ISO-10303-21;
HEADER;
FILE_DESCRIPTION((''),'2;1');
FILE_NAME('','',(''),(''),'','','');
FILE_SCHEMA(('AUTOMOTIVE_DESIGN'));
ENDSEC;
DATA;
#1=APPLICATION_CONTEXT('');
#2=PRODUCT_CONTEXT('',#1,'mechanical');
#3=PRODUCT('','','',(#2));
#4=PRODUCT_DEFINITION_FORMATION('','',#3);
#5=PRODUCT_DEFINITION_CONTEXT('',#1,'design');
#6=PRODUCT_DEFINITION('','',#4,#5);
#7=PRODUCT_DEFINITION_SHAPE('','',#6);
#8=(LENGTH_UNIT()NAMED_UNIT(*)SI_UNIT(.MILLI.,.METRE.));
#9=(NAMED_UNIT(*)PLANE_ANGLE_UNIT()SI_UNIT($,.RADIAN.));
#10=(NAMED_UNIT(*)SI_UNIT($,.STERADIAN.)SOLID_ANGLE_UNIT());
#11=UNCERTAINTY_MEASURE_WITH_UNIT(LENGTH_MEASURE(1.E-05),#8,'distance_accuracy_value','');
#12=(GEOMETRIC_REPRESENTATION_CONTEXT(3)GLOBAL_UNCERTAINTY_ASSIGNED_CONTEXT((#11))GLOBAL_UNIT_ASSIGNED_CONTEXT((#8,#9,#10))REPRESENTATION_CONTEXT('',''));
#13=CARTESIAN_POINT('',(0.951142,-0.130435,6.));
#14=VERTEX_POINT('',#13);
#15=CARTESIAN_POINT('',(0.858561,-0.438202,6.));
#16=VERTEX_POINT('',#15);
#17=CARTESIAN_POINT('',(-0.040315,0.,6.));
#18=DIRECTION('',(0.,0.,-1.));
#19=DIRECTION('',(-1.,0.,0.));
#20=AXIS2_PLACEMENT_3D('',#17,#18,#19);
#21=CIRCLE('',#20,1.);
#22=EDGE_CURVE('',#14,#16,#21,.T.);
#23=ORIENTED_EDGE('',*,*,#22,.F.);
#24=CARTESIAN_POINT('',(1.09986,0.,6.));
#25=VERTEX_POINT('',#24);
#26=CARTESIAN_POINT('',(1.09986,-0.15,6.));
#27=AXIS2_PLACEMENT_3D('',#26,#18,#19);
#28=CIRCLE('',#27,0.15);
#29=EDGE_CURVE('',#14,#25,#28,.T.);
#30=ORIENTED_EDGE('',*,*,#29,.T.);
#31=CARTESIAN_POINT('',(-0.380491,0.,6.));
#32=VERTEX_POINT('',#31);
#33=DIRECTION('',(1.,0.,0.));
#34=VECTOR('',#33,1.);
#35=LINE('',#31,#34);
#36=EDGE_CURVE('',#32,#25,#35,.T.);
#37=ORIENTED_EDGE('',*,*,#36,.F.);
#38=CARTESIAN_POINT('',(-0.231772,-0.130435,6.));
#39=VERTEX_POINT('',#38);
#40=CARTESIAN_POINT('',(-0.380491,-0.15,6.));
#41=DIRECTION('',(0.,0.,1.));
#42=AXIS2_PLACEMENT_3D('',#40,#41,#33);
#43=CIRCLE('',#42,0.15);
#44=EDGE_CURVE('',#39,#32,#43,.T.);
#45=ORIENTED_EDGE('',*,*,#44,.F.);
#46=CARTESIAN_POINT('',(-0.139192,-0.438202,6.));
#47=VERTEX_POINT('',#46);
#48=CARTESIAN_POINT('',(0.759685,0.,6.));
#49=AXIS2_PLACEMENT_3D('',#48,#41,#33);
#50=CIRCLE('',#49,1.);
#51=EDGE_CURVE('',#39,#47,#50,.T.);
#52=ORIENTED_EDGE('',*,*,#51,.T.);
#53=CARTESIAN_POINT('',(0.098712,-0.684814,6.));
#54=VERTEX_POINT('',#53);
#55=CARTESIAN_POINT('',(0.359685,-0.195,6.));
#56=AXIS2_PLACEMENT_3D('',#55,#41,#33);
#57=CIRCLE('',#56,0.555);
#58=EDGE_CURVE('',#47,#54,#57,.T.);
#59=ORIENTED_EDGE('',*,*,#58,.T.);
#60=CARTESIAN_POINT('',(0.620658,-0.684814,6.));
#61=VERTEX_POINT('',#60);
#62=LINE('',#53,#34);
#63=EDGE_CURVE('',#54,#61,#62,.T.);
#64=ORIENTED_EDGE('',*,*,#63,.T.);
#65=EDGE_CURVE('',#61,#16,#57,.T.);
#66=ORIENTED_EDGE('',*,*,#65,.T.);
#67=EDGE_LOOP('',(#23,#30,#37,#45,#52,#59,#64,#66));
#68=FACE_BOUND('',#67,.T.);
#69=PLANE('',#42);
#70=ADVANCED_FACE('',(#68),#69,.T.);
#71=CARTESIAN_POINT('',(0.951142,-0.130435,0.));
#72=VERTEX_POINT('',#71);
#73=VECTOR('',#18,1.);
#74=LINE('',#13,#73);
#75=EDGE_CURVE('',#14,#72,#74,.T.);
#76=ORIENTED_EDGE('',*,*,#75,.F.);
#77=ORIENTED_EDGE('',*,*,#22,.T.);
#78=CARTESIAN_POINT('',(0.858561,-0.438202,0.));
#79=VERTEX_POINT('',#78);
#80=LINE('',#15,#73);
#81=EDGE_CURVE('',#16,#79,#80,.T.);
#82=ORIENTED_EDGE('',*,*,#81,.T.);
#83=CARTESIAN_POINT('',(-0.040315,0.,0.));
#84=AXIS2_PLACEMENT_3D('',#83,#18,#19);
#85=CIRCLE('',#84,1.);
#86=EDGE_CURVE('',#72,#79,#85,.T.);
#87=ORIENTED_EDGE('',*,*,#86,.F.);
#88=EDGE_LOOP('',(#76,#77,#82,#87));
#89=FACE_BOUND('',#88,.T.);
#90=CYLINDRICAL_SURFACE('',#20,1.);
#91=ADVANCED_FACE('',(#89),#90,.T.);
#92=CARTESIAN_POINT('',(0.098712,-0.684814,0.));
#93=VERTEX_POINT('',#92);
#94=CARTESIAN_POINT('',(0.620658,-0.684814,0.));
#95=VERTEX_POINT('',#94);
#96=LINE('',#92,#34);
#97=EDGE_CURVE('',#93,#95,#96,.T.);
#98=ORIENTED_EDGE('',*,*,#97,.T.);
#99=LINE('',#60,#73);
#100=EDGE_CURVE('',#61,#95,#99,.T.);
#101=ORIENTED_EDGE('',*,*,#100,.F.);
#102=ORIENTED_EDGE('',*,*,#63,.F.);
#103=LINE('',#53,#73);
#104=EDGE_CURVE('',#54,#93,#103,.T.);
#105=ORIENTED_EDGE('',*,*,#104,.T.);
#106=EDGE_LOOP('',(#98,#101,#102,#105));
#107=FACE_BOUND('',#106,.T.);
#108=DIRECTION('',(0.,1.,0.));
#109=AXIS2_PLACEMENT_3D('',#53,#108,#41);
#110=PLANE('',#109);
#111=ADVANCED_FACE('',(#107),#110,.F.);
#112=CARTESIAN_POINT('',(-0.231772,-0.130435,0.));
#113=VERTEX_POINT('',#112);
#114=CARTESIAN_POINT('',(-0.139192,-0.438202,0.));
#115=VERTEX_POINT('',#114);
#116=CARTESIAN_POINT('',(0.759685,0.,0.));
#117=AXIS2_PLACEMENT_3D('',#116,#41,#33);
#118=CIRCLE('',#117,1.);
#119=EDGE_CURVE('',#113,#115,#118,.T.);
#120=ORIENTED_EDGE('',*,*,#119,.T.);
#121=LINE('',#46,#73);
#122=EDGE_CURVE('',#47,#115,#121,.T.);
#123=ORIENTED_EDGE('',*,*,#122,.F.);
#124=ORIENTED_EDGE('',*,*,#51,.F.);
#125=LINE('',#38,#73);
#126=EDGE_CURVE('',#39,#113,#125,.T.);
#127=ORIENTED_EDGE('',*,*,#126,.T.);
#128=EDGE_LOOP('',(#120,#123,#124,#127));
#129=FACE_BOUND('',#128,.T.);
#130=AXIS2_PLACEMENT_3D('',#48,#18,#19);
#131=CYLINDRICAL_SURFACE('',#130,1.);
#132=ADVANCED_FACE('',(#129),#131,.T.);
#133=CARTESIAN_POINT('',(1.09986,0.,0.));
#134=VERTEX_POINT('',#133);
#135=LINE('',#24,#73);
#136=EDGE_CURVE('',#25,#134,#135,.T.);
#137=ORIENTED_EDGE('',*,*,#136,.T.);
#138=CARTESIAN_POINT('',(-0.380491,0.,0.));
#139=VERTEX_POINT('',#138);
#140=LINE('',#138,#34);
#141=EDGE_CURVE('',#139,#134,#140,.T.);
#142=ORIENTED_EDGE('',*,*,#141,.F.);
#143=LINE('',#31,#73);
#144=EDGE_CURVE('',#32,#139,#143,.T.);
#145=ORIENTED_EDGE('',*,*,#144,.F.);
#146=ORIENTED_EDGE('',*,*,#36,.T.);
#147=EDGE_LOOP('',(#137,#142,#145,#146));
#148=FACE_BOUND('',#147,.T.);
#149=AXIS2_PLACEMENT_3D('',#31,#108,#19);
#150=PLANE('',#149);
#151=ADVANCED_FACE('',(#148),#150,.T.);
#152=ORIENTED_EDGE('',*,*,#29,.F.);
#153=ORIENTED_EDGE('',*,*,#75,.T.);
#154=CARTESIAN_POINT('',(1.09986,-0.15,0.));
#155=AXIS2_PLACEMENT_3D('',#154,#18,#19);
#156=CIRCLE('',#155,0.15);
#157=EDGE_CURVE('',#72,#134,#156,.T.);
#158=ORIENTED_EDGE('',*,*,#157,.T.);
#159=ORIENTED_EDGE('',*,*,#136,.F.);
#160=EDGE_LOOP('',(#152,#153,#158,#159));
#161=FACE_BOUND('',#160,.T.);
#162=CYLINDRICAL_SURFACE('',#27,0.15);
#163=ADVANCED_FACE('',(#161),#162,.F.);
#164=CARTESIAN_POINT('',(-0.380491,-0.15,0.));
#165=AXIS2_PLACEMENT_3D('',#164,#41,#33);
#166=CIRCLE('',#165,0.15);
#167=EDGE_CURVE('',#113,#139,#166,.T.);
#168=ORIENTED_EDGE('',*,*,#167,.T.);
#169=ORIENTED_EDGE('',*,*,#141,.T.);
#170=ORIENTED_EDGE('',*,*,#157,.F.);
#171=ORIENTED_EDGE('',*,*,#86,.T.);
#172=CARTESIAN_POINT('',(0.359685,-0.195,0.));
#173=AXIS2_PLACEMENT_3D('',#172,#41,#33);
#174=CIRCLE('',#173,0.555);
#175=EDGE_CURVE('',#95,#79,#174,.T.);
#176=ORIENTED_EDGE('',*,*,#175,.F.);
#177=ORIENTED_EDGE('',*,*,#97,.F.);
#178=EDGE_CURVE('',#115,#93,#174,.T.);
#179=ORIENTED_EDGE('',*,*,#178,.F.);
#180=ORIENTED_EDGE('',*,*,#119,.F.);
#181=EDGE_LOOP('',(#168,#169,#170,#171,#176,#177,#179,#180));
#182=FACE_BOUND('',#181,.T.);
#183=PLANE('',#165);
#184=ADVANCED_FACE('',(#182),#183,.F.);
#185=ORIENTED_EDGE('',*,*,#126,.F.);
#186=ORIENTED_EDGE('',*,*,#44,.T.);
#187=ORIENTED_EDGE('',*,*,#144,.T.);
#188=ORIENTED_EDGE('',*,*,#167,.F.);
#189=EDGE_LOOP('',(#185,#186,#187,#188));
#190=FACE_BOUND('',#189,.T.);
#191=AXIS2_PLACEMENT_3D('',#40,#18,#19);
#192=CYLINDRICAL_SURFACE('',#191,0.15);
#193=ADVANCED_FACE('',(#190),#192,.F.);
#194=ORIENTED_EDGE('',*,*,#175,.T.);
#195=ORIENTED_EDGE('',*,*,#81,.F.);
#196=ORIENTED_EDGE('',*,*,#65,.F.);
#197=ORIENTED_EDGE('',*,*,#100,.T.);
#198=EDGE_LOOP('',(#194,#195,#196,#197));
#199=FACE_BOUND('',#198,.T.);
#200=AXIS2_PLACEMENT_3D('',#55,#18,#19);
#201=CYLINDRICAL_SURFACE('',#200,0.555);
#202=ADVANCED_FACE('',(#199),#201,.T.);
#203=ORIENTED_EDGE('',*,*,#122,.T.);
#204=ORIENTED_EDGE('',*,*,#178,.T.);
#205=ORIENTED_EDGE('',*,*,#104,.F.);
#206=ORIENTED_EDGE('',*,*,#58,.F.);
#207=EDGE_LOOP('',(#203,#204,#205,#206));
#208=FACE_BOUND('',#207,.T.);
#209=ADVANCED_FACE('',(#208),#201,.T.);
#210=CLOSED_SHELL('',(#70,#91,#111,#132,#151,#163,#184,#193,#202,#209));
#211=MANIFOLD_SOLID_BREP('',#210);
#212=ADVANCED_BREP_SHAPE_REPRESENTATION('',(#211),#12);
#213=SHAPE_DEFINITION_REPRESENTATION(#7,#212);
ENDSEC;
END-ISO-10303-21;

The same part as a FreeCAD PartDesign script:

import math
import FreeCAD as App
import Part
import Sketcher
Q = App.Units.Quantity

doc = App.newDocument("Part")
body = doc.addObject("PartDesign::Body", "Body")

# Sketch on XY plane
sketch1 = doc.addObject("Sketcher::SketchObject", "Sketch")
body.addObject(sketch1)
sketch1.AttachmentSupport = (doc.XY_Plane, [""])
sketch1.MapMode = "FlatFace"
sketch1.addGeometry(Part.LineSegment(App.Vector(1.09986, 0, 0), App.Vector(-0.380491, 0, 0)), False)
sketch1.addGeometry(Part.ArcOfCircle(Part.Circle(App.Vector(-0.380491, -0.15, 0), App.Vector(0, 0, 1), 0.15), math.radians(7.494717), math.radians(90)), False)
sketch1.addGeometry(Part.ArcOfCircle(Part.Circle(App.Vector(0.759685, 0, 0), App.Vector(0, 0, 1), 1), math.radians(-172.505283), math.radians(-154.010766)), False)
sketch1.addGeometry(Part.ArcOfCircle(Part.Circle(App.Vector(0.359685, -0.195, 0), App.Vector(0, 0, 1), 0.555), math.radians(-154.010767), math.radians(-118.048654)), False)
sketch1.addGeometry(Part.LineSegment(App.Vector(0.098712, -0.684814, 0), App.Vector(0.620658, -0.684814, 0)), False)
sketch1.addGeometry(Part.ArcOfCircle(Part.Circle(App.Vector(0.359685, -0.195, 0), App.Vector(0, 0, 1), 0.555), math.radians(-61.951345), math.radians(-25.989234)), False)
sketch1.addGeometry(Part.ArcOfCircle(Part.Circle(App.Vector(-0.040315, 0, 0), App.Vector(0, 0, 1), 1), math.radians(-25.989234), math.radians(-7.494717)), False)
sketch1.addGeometry(Part.ArcOfCircle(Part.Circle(App.Vector(1.09986, -0.15, 0), App.Vector(0, 0, 1), 0.15), math.radians(90), math.radians(172.505283)), False)
sketch1.addConstraint(Sketcher.Constraint("Tangent", 0, 2, 1, 2))
sketch1.addConstraint(Sketcher.Constraint("Tangent", 1, 1, 2, 1))
sketch1.addConstraint(Sketcher.Constraint("Tangent", 2, 2, 3, 1))
sketch1.addConstraint(Sketcher.Constraint("Coincident", 3, 2, 4, 1))
sketch1.addConstraint(Sketcher.Constraint("Coincident", 4, 2, 5, 1))
sketch1.addConstraint(Sketcher.Constraint("Tangent", 5, 2, 6, 1))
sketch1.addConstraint(Sketcher.Constraint("Tangent", 6, 2, 7, 2))
sketch1.addConstraint(Sketcher.Constraint("Tangent", 7, 1, 0, 1))
sketch1.addConstraint(Sketcher.Constraint("Horizontal", 0))
sketch1.addConstraint(Sketcher.Constraint("Horizontal", 4))
sketch1.addConstraint(Sketcher.Constraint("Coincident", 5, 3, 3, 3))
sketch1.addConstraint(Sketcher.Constraint("Equal", 3, 5))
sketch1.addConstraint(Sketcher.Constraint("Equal", 2, 6))
sketch1.addConstraint(Sketcher.Constraint("Equal", 1, 7))
sketch1.addConstraint(Sketcher.Constraint("PointOnObject", 2, 3, -1))
sketch1.addConstraint(Sketcher.Constraint("PointOnObject", 6, 3, -1))
sketch1.addConstraint(Sketcher.Constraint("PointOnObject", 0, 2, -1))
sketch1.addConstraint(Sketcher.Constraint("Radius", 2, Q("1 mm")))
sketch1.addConstraint(Sketcher.Constraint("Radius", 1, Q("0.15 mm")))
sketch1.addConstraint(Sketcher.Constraint("Radius", 3, Q("0.555 mm")))
sketch1.addConstraint(Sketcher.Constraint("DistanceX", 3, 3, 2, 3, Q("0.4 mm")))
sketch1.addConstraint(Sketcher.Constraint("DistanceX", 4, 1, 4, 2, Q("0.521946 mm")))
sketch1.addConstraint(Sketcher.Constraint("DistanceX", 1, 3, -1, 1, Q("0.380491 mm")))
pad1 = doc.addObject("PartDesign::Pad", "Pad")
body.addObject(pad1)
pad1.Profile = sketch1
pad1.Length = 6

doc.recompute()
